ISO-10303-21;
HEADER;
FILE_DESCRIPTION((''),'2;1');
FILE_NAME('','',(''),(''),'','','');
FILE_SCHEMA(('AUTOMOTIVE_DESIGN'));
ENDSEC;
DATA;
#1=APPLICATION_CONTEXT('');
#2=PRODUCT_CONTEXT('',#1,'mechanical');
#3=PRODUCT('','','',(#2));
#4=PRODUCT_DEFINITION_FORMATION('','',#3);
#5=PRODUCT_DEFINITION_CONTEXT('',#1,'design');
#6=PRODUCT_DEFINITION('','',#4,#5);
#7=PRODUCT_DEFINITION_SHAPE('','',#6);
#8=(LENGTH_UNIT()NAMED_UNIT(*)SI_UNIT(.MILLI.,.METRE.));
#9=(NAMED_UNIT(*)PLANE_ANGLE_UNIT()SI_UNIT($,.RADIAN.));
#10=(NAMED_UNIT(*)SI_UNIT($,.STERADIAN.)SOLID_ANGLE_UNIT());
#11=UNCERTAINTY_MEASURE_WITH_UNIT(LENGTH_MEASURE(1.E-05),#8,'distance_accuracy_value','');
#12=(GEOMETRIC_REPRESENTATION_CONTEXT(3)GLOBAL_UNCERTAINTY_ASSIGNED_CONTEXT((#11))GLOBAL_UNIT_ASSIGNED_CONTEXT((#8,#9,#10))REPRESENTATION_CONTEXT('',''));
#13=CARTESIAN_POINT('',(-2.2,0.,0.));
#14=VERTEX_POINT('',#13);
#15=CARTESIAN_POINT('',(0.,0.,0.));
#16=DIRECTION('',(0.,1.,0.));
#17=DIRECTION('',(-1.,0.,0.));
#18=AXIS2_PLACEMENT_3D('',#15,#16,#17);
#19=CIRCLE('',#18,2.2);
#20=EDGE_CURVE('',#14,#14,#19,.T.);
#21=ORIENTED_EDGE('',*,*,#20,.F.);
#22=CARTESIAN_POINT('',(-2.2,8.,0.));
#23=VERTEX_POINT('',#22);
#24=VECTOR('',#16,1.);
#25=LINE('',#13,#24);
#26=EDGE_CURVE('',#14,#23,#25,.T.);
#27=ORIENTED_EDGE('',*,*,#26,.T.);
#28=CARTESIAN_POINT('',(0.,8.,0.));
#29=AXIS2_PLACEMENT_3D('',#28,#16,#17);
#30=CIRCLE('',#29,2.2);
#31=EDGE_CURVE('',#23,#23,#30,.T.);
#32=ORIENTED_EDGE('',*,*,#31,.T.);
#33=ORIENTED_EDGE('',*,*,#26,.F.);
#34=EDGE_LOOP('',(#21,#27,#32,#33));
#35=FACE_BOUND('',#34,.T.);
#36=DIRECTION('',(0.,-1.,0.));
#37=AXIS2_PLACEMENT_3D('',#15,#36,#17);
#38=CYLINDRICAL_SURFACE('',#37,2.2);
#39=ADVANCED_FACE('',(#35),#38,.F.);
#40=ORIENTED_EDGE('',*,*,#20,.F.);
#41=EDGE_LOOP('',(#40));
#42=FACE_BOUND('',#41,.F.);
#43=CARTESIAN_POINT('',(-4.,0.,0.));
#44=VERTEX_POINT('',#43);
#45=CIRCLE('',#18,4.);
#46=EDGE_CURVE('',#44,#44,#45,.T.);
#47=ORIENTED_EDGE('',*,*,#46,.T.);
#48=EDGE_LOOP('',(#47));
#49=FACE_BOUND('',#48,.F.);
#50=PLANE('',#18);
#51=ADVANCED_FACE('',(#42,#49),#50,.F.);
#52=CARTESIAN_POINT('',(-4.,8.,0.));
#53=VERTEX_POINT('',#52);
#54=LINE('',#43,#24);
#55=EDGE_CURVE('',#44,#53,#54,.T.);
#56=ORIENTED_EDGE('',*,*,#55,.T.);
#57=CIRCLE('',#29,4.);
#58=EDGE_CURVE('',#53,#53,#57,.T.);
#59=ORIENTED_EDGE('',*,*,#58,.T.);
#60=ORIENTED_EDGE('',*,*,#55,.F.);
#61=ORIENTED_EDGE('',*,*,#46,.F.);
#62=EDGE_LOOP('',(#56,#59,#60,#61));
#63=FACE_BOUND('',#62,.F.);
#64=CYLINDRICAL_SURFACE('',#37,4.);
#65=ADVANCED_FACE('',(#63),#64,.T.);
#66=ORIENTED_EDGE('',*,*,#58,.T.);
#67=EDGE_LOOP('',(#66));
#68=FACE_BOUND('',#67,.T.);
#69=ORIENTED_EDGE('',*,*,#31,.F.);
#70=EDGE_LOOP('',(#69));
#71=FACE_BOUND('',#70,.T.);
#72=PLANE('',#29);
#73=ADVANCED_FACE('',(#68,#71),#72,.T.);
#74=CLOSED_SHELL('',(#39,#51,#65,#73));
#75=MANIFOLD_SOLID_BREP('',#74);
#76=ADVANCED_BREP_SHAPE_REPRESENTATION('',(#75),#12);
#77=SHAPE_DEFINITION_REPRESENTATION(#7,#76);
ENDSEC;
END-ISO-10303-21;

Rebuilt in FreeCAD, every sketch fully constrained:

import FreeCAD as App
import Part
import Sketcher
from FreeCAD import Vector

doc = App.newDocument("Part")
body = doc.addObject("PartDesign::Body", "Body")

sketch1 = body.newObject("Sketcher::SketchObject", "Sketch")
sketch1.AttachmentSupport = (doc.getObject("XZ_Plane"), [""])
sketch1.MapMode = "FlatFace"
sketch1.addGeometry(Part.Circle(Vector(0, 0, 0), Vector(0, 0, 1), 4), False)
sketch1.addGeometry(Part.Circle(Vector(0, 0, 0), Vector(0, 0, 1), 2.2), False)
sketch1.addConstraint(Sketcher.Constraint("Coincident", 0, 3, -1, 1))
sketch1.addConstraint(Sketcher.Constraint("Coincident", 1, 3, -1, 1))
sketch1.addConstraint(Sketcher.Constraint("Diameter", 0, 8.0))
sketch1.addConstraint(Sketcher.Constraint("Diameter", 1, 4.4))
pad1 = body.newObject("PartDesign::Pad", "Pad")
pad1.Profile = sketch1
pad1.Length = 8
pad1.Reversed = True

doc.recompute()
